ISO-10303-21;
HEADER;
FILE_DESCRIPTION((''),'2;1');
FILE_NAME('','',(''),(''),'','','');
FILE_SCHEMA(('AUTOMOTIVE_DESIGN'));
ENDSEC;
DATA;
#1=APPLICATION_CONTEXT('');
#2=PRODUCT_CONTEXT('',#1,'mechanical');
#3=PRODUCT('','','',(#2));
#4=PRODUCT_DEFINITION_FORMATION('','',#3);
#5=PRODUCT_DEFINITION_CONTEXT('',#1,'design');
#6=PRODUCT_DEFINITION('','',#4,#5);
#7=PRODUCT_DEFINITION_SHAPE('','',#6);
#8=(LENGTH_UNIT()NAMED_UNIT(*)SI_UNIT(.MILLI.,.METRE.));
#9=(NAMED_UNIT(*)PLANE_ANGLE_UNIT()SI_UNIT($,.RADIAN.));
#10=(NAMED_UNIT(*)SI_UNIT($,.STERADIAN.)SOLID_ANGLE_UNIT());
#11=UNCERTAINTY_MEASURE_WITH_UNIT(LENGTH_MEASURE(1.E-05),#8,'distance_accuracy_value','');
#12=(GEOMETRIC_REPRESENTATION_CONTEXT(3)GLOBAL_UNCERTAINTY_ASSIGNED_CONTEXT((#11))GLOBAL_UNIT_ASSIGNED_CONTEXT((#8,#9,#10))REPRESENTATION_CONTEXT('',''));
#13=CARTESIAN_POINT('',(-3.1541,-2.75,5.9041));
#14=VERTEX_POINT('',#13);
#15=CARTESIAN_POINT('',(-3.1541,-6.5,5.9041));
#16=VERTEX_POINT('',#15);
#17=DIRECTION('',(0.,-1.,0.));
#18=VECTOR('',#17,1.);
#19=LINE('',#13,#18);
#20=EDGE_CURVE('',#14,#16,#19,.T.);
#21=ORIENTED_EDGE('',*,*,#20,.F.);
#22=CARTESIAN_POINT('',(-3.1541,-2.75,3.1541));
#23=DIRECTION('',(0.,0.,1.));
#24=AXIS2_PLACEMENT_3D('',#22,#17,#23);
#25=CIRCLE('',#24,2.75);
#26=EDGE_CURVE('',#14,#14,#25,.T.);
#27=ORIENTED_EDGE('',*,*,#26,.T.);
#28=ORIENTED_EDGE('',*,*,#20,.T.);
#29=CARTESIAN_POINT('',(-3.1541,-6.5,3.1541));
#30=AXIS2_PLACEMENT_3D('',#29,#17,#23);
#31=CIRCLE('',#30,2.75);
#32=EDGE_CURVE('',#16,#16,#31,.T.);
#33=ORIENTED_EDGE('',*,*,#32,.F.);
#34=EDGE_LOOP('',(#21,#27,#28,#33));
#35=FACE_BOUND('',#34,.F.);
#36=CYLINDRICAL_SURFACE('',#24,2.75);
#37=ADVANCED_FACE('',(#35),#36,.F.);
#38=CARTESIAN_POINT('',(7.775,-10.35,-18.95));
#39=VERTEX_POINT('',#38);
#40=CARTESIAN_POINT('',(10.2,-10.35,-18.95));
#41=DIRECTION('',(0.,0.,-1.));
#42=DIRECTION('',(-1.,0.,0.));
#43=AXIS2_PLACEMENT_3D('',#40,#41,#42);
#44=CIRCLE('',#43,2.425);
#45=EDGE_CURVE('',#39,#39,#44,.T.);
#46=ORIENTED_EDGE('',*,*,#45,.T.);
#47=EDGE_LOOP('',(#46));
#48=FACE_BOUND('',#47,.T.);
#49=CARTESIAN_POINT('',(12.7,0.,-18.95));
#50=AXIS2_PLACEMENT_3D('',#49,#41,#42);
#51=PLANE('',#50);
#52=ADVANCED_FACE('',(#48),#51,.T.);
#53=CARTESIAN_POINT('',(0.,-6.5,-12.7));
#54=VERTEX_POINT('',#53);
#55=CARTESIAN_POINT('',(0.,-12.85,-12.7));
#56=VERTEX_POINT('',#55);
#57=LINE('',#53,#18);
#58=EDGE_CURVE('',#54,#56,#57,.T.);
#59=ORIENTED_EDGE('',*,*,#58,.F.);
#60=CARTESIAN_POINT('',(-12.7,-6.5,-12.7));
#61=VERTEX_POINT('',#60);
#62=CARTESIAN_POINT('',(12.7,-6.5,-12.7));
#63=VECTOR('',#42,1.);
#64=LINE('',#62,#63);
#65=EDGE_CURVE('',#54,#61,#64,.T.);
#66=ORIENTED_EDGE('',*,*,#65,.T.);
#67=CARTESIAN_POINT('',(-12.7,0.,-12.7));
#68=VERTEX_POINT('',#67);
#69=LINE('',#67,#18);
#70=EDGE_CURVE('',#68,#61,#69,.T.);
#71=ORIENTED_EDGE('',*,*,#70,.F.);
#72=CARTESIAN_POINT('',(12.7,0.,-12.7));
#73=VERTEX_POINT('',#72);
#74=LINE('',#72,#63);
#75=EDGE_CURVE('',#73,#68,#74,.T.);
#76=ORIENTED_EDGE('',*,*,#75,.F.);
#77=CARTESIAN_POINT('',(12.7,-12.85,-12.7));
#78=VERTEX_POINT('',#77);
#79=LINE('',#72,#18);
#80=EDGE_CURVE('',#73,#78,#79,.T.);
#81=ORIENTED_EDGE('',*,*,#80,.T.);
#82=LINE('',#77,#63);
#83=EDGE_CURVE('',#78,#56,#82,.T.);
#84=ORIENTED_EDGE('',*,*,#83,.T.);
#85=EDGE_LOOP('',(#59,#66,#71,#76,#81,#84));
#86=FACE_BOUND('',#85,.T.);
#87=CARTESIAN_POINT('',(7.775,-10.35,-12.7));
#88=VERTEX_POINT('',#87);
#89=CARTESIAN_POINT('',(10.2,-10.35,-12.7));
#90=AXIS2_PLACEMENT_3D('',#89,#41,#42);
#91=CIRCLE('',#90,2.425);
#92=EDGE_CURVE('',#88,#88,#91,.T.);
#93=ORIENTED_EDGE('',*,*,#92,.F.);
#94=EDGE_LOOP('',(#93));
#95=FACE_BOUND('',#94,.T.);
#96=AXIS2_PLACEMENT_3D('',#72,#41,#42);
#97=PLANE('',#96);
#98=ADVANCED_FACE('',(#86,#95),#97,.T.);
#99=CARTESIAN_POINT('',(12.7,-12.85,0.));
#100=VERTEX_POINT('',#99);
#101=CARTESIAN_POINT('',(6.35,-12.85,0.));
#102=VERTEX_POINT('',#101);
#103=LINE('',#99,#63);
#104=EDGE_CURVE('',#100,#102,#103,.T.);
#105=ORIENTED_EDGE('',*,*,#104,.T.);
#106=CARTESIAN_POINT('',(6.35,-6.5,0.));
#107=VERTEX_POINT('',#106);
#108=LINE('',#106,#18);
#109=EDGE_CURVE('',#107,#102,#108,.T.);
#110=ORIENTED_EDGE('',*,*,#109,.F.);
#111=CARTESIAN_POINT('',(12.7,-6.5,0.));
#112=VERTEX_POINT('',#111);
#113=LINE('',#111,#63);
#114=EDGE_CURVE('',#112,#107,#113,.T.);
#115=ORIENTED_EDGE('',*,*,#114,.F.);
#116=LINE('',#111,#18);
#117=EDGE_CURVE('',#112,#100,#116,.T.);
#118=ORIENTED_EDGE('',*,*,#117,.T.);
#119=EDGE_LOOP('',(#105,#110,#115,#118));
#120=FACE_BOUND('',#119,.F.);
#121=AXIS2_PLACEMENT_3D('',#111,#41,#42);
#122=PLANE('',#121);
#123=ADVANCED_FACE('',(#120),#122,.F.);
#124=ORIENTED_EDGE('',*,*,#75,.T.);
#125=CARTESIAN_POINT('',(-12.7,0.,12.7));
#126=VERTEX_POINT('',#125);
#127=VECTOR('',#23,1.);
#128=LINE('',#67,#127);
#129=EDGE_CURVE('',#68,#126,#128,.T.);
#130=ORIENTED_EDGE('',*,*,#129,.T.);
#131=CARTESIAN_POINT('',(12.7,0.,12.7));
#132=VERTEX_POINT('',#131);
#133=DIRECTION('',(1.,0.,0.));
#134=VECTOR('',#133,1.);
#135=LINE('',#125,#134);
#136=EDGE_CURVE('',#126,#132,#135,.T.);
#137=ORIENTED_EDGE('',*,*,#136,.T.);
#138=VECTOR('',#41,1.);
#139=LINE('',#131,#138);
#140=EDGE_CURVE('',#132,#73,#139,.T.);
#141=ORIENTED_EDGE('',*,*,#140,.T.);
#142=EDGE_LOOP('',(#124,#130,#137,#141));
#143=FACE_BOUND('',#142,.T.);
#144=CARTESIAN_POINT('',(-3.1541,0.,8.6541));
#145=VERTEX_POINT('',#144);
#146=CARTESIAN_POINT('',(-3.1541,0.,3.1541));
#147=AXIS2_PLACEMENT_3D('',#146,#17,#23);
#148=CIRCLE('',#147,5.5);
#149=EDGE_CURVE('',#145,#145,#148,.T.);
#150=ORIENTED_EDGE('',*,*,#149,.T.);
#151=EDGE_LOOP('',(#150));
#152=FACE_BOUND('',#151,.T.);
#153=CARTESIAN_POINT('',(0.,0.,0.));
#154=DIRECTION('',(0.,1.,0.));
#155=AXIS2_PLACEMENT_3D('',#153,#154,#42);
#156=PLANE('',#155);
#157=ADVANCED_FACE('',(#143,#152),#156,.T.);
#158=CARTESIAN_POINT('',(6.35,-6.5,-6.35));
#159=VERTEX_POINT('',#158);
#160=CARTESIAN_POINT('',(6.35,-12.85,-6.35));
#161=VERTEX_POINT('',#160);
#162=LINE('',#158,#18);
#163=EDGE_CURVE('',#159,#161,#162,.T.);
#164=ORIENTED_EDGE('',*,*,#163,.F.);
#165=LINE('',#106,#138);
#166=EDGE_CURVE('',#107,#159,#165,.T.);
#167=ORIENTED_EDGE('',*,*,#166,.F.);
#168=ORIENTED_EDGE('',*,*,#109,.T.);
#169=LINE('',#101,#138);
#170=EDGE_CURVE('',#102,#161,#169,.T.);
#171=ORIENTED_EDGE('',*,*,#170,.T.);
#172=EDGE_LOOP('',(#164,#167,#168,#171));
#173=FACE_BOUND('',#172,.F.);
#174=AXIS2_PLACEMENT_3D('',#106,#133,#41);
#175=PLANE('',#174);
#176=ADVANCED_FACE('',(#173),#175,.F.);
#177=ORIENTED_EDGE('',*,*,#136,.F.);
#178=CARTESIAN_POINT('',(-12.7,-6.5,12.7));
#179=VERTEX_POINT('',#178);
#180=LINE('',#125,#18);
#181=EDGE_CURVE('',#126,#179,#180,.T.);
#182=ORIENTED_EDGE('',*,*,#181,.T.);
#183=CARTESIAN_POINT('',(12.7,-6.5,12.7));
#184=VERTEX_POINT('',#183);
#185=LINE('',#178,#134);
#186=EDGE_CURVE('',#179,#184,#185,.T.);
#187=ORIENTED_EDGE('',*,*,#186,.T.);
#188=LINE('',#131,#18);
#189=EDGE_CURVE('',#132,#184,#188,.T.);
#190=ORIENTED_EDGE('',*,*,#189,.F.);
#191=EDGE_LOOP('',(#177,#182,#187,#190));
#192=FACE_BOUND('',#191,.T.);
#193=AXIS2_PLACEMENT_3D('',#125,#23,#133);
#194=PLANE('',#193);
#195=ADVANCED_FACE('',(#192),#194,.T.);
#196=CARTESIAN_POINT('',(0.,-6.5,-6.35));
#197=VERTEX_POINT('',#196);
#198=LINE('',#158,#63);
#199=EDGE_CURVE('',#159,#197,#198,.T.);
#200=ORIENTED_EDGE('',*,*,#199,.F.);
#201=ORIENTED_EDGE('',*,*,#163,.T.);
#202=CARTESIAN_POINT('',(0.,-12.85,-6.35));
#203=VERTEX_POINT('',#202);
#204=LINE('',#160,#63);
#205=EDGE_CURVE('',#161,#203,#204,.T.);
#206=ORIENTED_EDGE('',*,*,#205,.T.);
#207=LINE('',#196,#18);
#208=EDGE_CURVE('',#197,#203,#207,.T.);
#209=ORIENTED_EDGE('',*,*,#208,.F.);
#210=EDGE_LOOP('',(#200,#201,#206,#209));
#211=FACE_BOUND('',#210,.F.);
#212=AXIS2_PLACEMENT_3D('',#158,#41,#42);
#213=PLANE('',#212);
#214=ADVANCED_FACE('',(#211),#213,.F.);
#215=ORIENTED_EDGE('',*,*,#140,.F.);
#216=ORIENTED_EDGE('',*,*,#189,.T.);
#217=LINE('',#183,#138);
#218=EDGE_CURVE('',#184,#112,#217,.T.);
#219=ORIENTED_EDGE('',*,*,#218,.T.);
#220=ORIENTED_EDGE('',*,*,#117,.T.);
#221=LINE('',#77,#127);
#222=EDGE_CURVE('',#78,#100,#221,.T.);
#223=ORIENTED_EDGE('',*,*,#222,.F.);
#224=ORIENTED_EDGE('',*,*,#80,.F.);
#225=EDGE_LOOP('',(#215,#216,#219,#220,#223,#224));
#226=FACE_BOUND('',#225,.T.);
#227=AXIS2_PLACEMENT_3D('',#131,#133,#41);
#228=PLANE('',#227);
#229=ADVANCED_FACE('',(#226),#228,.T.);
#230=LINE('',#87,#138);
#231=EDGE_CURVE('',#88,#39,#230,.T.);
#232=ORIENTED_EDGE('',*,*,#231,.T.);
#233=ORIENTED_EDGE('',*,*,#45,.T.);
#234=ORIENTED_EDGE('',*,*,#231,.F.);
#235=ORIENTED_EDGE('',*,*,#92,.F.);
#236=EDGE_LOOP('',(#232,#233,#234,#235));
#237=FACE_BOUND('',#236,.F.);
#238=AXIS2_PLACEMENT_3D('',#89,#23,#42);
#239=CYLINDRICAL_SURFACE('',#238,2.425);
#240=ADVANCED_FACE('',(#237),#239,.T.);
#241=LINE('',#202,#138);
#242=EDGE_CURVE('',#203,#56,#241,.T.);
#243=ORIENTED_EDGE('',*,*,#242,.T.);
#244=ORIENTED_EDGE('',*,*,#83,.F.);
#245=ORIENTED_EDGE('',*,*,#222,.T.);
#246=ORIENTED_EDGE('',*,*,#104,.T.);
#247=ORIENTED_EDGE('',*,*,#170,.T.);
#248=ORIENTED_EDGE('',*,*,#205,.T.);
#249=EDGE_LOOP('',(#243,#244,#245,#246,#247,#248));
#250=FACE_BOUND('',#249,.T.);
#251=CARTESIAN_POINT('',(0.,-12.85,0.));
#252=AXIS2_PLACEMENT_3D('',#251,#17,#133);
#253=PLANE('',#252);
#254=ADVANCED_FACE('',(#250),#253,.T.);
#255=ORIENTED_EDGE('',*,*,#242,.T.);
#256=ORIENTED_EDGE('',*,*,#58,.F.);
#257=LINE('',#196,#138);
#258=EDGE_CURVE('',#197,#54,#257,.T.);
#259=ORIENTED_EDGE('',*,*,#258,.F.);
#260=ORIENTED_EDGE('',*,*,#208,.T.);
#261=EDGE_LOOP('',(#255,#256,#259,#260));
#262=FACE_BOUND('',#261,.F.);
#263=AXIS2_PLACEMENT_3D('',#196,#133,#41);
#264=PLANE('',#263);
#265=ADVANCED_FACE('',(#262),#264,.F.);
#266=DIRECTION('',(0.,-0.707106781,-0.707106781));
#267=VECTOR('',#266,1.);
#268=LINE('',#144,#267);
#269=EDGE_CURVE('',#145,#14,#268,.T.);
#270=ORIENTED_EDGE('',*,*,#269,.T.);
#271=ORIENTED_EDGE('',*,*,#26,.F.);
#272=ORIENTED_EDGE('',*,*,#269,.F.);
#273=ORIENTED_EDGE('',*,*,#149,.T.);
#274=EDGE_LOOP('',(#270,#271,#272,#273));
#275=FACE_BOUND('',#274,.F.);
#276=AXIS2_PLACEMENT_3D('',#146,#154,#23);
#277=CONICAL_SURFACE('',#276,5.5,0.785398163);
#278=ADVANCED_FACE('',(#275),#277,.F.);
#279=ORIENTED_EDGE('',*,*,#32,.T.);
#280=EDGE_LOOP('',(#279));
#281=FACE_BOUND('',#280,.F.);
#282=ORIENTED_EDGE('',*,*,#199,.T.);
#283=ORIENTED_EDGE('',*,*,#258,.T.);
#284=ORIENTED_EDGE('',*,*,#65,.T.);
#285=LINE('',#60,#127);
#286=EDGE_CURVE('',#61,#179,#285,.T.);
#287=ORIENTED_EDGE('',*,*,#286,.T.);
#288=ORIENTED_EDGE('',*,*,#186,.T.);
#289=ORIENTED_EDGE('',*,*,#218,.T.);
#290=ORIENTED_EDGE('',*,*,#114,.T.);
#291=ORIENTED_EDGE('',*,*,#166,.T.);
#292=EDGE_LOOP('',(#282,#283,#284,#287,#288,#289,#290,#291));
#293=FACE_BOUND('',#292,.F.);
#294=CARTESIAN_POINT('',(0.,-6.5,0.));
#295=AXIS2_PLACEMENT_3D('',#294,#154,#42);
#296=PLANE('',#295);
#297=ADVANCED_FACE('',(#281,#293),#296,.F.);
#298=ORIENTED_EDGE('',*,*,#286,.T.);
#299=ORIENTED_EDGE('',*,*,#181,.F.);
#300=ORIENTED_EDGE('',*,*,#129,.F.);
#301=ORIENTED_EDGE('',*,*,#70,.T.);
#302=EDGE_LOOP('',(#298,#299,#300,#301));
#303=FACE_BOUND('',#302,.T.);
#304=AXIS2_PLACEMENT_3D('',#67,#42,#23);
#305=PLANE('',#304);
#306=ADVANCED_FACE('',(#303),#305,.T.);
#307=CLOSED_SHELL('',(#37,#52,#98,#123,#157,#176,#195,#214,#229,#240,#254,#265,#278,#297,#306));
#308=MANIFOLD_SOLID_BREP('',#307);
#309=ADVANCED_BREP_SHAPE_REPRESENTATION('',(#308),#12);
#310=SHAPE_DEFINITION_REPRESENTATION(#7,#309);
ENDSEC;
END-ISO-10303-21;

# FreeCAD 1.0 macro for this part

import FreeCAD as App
import Part
import Sketcher
Q = App.Units.Quantity

doc = App.newDocument("Part")
params = doc.addObject("Spreadsheet::Sheet", "Params")
for row, (alias, value) in enumerate([
    ("sketch1_width", "1 in"),
    ("pad1_length", "0.2559055 in"),
    ("sketch2_width", "0.5 in"),
    ("pad2_length", "0.25 in"),
    ("hole_diameter", "5.5 mm"),
    ("hole_csink_diameter", "11 mm"),
    ("pad3_length", "6.25 mm"),
], start=1):
    params.set(f"A{row}", alias)
    params.set(f"B{row}", "=" + value)
    params.setAlias(f"B{row}", alias)

body = doc.addObject("PartDesign::Body", "Body")

sketch1 = doc.addObject("Sketcher::SketchObject", "Sketch")
body.addObject(sketch1)
sketch1.AttachmentSupport = (doc.XZ_Plane, [""])
sketch1.MapMode = "FlatFace"
sketch1.addGeometry([
    Part.LineSegment(App.Vector(-13, -13, 0), App.Vector(-13, 13, 0)),
    Part.LineSegment(App.Vector(-13, 13, 0), App.Vector(13, 13, 0)),
    Part.LineSegment(App.Vector(13, 13, 0), App.Vector(13, -13, 0)),
    Part.LineSegment(App.Vector(13, -13, 0), App.Vector(-13, -13, 0)),
], False)
sketch1.addConstraint([
    Sketcher.Constraint("Coincident", 0, 2, 1, 1),
    Sketcher.Constraint("Coincident", 1, 2, 2, 1),
    Sketcher.Constraint("Coincident", 2, 2, 3, 1),
    Sketcher.Constraint("Coincident", 3, 2, 0, 1),
    Sketcher.Constraint("Vertical", 0),
    Sketcher.Constraint("Horizontal", 1),
    Sketcher.Constraint("Vertical", 2),
    Sketcher.Constraint("Horizontal", 3),
    Sketcher.Constraint("Symmetric", 0, 2, 2, 2, -1, 1),
    Sketcher.Constraint("Equal", 3, 0),
    Sketcher.Constraint("DistanceX", 1, 1, 1, 2, Q("1 in")),
])
sketch1.setExpression("Constraints[10]", "Params.sketch1_width")
pad1 = doc.addObject("PartDesign::Pad", "Pad")
body.addObject(pad1)
pad1.Profile = sketch1
pad1.setExpression("Length", "Params.pad1_length")

sketch2 = doc.addObject("Sketcher::SketchObject", "Sketch001")
body.addObject(sketch2)
sketch2.AttachmentSupport = (doc.XZ_Plane, [""])
sketch2.MapMode = "FlatFace"
sketch2.AttachmentOffset = App.Placement(App.Vector(0, 0, 0.2559055 * 25.4), App.Rotation())
sketch2.addGeometry([
    Part.LineSegment(App.Vector(0, -6, 0), App.Vector(0, -13, 0)),
    Part.LineSegment(App.Vector(0, -13, 0), App.Vector(13, -13, 0)),
    Part.LineSegment(App.Vector(13, -13, 0), App.Vector(13, 0, 0)),
    Part.LineSegment(App.Vector(13, 0, 0), App.Vector(6, 0, 0)),
    Part.LineSegment(App.Vector(6, 0, 0), App.Vector(6, -6, 0)),
    Part.LineSegment(App.Vector(6, -6, 0), App.Vector(0, -6, 0)),
], False)
sketch2.addConstraint([
    Sketcher.Constraint("Coincident", 0, 2, 1, 1),
    Sketcher.Constraint("Coincident", 1, 2, 2, 1),
    Sketcher.Constraint("Coincident", 2, 2, 3, 1),
    Sketcher.Constraint("Coincident", 3, 2, 4, 1),
    Sketcher.Constraint("Coincident", 4, 2, 5, 1),
    Sketcher.Constraint("Coincident", 5, 2, 0, 1),
    Sketcher.Constraint("Vertical", 0),
    Sketcher.Constraint("Horizontal", 1),
    Sketcher.Constraint("Vertical", 2),
    Sketcher.Constraint("Horizontal", 3),
    Sketcher.Constraint("Vertical", 4),
    Sketcher.Constraint("Horizontal", 5),
    Sketcher.Constraint("PointOnObject", 0, 2, -2),
    Sketcher.Constraint("PointOnObject", 2, 2, -1),
    Sketcher.Constraint("Equal", 3, 5),
    Sketcher.Constraint("Equal", 5, 0),
    Sketcher.Constraint("Equal", 1, 2),
    Sketcher.Constraint("DistanceX", 1, 1, 1, 2, Q("0.5 in")),
])
sketch2.setExpression("Constraints[17]", "Params.sketch2_width")
pad2 = doc.addObject("PartDesign::Pad", "Pad001")
body.addObject(pad2)
pad2.Profile = sketch2
pad2.setExpression("Length", "Params.pad2_length")

sketch3 = doc.addObject("Sketcher::SketchObject", "Sketch002")
body.addObject(sketch3)
sketch3.AttachmentSupport = (doc.XZ_Plane, [""])
sketch3.MapMode = "FlatFace"
sketch3.addGeometry(Part.Circle(App.Vector(-3.2, 3.2, 0), App.Vector(0, 0, 1), 2.8), False)
sketch3.addConstraint([
    Sketcher.Constraint("Diameter", 0, Q("5.5 mm")),
    Sketcher.Constraint("DistanceX", 0, 3, -1, 1, Q("3.154 mm")),
    Sketcher.Constraint("DistanceY", -1, 1, 0, 3, Q("3.154 mm")),
])
doc.recompute()
hole = doc.addObject("PartDesign::Hole", "Hole")
body.addObject(hole)
hole.Profile = sketch3
hole.ThreadType = "None"
hole.setExpression("Diameter", "Params.hole_diameter")
hole.DepthType = "ThroughAll"
hole.HoleCutType = "Countersink"
hole.setExpression("HoleCutDiameter", "Params.hole_csink_diameter")
hole.HoleCutCountersinkAngle = 90
hole.Reversed = True

sketch4 = doc.addObject("Sketcher::SketchObject", "Sketch003")
body.addObject(sketch4)
sketch4.AttachmentSupport = (doc.XY_Plane, [""])
sketch4.MapMode = "FlatFace"
sketch4.AttachmentOffset = App.Placement(App.Vector(0, 0, -0.5 * 25.4), App.Rotation())
sketch4.addGeometry(Part.Circle(App.Vector(10.2, -10.3, 0), App.Vector(0, 0, 1), 2.4), False)
sketch4.addConstraint([
    Sketcher.Constraint("Diameter", 0, Q("4.85 mm")),
    Sketcher.Constraint("DistanceX", -1, 1, 0, 3, Q("10.2 mm")),
    Sketcher.Constraint("DistanceY", 0, 3, -1, 1, Q("10.35 mm")),
])
pad3 = doc.addObject("PartDesign::Pad", "Pad002")
body.addObject(pad3)
pad3.Profile = sketch4
pad3.setExpression("Length", "Params.pad3_length")
pad3.Reversed = True

doc.recompute()
